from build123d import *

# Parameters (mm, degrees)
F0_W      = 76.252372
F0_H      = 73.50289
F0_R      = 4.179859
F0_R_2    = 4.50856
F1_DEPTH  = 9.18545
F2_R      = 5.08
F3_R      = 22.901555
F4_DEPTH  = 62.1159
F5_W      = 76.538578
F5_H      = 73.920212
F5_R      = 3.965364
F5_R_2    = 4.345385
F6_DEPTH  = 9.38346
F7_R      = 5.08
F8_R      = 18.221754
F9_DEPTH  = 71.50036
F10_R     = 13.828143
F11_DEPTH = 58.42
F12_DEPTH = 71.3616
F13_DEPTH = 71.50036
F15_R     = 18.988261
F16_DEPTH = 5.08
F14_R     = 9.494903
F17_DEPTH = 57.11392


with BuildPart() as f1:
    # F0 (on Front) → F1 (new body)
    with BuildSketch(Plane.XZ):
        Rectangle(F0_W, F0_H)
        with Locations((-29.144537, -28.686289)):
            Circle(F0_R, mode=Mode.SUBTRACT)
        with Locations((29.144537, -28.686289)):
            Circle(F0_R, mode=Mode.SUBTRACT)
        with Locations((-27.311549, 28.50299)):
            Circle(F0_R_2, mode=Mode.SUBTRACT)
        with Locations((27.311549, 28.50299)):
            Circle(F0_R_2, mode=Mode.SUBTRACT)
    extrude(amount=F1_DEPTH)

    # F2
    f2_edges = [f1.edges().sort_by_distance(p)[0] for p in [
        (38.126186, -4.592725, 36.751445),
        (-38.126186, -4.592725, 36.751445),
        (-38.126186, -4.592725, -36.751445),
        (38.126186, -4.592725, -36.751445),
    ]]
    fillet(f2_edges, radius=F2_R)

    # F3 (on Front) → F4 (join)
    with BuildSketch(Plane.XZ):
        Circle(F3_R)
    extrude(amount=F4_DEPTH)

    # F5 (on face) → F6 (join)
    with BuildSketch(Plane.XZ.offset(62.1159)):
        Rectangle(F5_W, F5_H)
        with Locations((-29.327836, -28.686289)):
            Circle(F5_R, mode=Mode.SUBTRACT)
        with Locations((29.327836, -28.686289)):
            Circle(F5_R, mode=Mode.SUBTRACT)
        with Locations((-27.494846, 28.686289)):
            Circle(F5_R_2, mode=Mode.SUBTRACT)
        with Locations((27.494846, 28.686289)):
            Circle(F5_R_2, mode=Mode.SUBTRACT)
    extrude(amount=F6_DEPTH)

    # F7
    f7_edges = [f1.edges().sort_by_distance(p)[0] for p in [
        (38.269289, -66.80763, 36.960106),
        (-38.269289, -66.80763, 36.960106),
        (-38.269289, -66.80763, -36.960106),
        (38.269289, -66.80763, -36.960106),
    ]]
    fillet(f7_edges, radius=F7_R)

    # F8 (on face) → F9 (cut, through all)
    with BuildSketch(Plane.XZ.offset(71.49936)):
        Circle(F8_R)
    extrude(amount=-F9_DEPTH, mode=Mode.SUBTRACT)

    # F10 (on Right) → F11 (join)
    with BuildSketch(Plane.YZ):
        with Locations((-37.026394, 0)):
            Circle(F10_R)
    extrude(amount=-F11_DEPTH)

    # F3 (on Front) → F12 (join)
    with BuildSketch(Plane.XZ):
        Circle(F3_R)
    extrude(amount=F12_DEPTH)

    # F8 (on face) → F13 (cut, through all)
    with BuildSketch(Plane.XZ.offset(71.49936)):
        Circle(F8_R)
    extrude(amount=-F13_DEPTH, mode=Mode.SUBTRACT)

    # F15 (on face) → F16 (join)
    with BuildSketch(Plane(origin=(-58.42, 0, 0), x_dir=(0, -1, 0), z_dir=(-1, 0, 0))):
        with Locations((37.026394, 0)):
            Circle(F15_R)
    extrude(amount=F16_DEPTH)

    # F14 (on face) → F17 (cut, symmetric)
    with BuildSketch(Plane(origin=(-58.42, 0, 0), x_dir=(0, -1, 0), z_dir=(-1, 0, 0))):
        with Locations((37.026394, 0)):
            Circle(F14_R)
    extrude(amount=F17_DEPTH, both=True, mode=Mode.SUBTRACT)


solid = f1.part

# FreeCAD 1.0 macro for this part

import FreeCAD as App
import Part
import Sketcher
Q = App.Units.Quantity


def edges_at(feature, points):
    """Names of the edges that pass closest to the given points."""
    edges = feature.Shape.Edges
    near = lambda p: min(range(len(edges)), key=lambda i: edges[i].distToShape(Part.Vertex(*p))[0])
    return sorted({f"Edge{near(p) + 1}" for p in points})

doc = App.newDocument("Part")
body = doc.addObject("PartDesign::Body", "Body")

sketch1 = doc.addObject("Sketcher::SketchObject", "Sketch")
body.addObject(sketch1)
sketch1.AttachmentSupport = (doc.XZ_Plane, [""])
sketch1.MapMode = "FlatFace"
sketch1.addGeometry([
    Part.LineSegment(App.Vector(-38.1, 36.8, 0), App.Vector(-38.1, -36.8, 0)),
    Part.LineSegment(App.Vector(-38.1, -36.8, 0), App.Vector(38.1, -36.8, 0)),
    Part.LineSegment(App.Vector(38.1, -36.8, 0), App.Vector(38.1, 36.8, 0)),
    Part.LineSegment(App.Vector(38.1, 36.8, 0), App.Vector(-38.1, 36.8, 0)),
    Part.Circle(App.Vector(-29.1, -28.7, 0), App.Vector(0, 0, 1), 4.2),
    Part.Circle(App.Vector(29.1, -28.7, 0), App.Vector(0, 0, 1), 4.2),
    Part.Circle(App.Vector(-27.3, 28.5, 0), App.Vector(0, 0, 1), 4.5),
    Part.Circle(App.Vector(27.3, 28.5, 0), App.Vector(0, 0, 1), 4.5),
], False)
sketch1.addConstraint([
    Sketcher.Constraint("Coincident", 0, 2, 1, 1),
    Sketcher.Constraint("Coincident", 1, 2, 2, 1),
    Sketcher.Constraint("Coincident", 2, 2, 3, 1),
    Sketcher.Constraint("Coincident", 3, 2, 0, 1),
    Sketcher.Constraint("Vertical", 0),
    Sketcher.Constraint("Horizontal", 1),
    Sketcher.Constraint("Vertical", 2),
    Sketcher.Constraint("Horizontal", 3),
    Sketcher.Constraint("Equal", 4, 5),
    Sketcher.Constraint("Equal", 6, 7),
    Sketcher.Constraint("Symmetric", 0, 2, 2, 2, -1, 1),
    Sketcher.Constraint("Symmetric", 4, 3, 5, 3, -2),
    Sketcher.Constraint("Symmetric", 6, 3, 7, 3, -2),
    Sketcher.Constraint("Diameter", 4, 8.359718),
    Sketcher.Constraint("Diameter", 6, 9.01712),
    Sketcher.Constraint("DistanceX", 1, 1, 1, 2, 76.252372),
    Sketcher.Constraint("DistanceY", 0, 2, 0, 1, 73.50289),
    Sketcher.Constraint("DistanceY", 4, 3, -1, 1, 28.686289),
    Sketcher.Constraint("DistanceX", 6, 3, -1, 1, 27.311549),
    Sketcher.Constraint("DistanceY", -1, 1, 6, 3, 28.50299),
    Sketcher.Constraint("DistanceX", 4, 3, 6, 3, 1.832988),
])
pad1 = doc.addObject("PartDesign::Pad", "Pad")
body.addObject(pad1)
pad1.Profile = sketch1
pad1.Length = 9.18545
doc.recompute()

fillet = doc.addObject("PartDesign::Fillet", "Fillet")
body.addObject(fillet)
fillet.Base = (pad1, edges_at(pad1, [
    (38.126, -4.593, 36.751),
    (-38.126, -4.593, 36.751),
    (-38.126, -4.593, -36.751),
    (38.126, -4.593, -36.751),
]))
fillet.Radius = Q("0.2 in")

sketch2 = doc.addObject("Sketcher::SketchObject", "Sketch001")
body.addObject(sketch2)
sketch2.AttachmentSupport = (doc.XZ_Plane, [""])
sketch2.MapMode = "FlatFace"
sketch2.addGeometry(Part.Circle(App.Vector(0, 0, 0), App.Vector(0, 0, 1), 23), False)
sketch2.addConstraint([
    Sketcher.Constraint("Coincident", 0, 3, -1, 1),
    Sketcher.Constraint("Diameter", 0, 45.80311),
])
pad2 = doc.addObject("PartDesign::Pad", "Pad001")
body.addObject(pad2)
pad2.Profile = sketch2
pad2.Length = 62.1159

sketch3 = doc.addObject("Sketcher::SketchObject", "Sketch002")
body.addObject(sketch3)
sketch3.AttachmentSupport = (doc.XZ_Plane, [""])
sketch3.MapMode = "FlatFace"
sketch3.AttachmentOffset = App.Placement(App.Vector(0, 0, 62.1159), App.Rotation())
sketch3.addGeometry([
    Part.LineSegment(App.Vector(-38.3, 37, 0), App.Vector(-38.3, -37, 0)),
    Part.LineSegment(App.Vector(-38.3, -37, 0), App.Vector(38.3, -37, 0)),
    Part.LineSegment(App.Vector(38.3, -37, 0), App.Vector(38.3, 37, 0)),
    Part.LineSegment(App.Vector(38.3, 37, 0), App.Vector(-38.3, 37, 0)),
    Part.Circle(App.Vector(-29.3, -28.7, 0), App.Vector(0, 0, 1), 4),
    Part.Circle(App.Vector(29.3, -28.7, 0), App.Vector(0, 0, 1), 4),
    Part.Circle(App.Vector(-27.5, 28.7, 0), App.Vector(0, 0, 1), 4.3),
    Part.Circle(App.Vector(27.5, 28.7, 0), App.Vector(0, 0, 1), 4.3),
], False)
sketch3.addConstraint([
    Sketcher.Constraint("Coincident", 0, 2, 1, 1),
    Sketcher.Constraint("Coincident", 1, 2, 2, 1),
    Sketcher.Constraint("Coincident", 2, 2, 3, 1),
    Sketcher.Constraint("Coincident", 3, 2, 0, 1),
    Sketcher.Constraint("Vertical", 0),
    Sketcher.Constraint("Horizontal", 1),
    Sketcher.Constraint("Vertical", 2),
    Sketcher.Constraint("Horizontal", 3),
    Sketcher.Constraint("Equal", 4, 5),
    Sketcher.Constraint("Equal", 6, 7),
    Sketcher.Constraint("Symmetric", 0, 2, 2, 2, -1, 1),
    Sketcher.Constraint("Symmetric", 4, 3, 5, 3, -2),
    Sketcher.Constraint("Symmetric", 6, 3, 7, 3, -2),
    Sketcher.Constraint("Diameter", 4, 7.930728),
    Sketcher.Constraint("Diameter", 6, 8.69077),
    Sketcher.Constraint("DistanceX", 1, 1, 1, 2, 76.538578),
    Sketcher.Constraint("DistanceY", 0, 2, 0, 1, 73.920212),
    Sketcher.Constraint("DistanceY", 4, 3, -1, 1, 28.686289),
    Sketcher.Constraint("DistanceY", -1, 1, 6, 3, 28.686289),
    Sketcher.Constraint("DistanceX", 4, 3, 6, 3, 1.83299),
    Sketcher.Constraint("DistanceX", 6, 3, 7, 3, 54.989692),
])
pad3 = doc.addObject("PartDesign::Pad", "Pad002")
body.addObject(pad3)
pad3.Profile = sketch3
pad3.Length = 9.38346
doc.recompute()

fillet2 = doc.addObject("PartDesign::Fillet", "Fillet001")
body.addObject(fillet2)
fillet2.Base = (pad3, edges_at(pad3, [
    (38.269, -66.808, 36.96),
    (-38.269, -66.808, 36.96),
    (-38.269, -66.808, -36.96),
    (38.269, -66.808, -36.96),
]))
fillet2.Radius = Q("0.2 in")

sketch4 = doc.addObject("Sketcher::SketchObject", "Sketch003")
body.addObject(sketch4)
sketch4.AttachmentSupport = (doc.XZ_Plane, [""])
sketch4.MapMode = "FlatFace"
sketch4.AttachmentOffset = App.Placement(App.Vector(0, 0, 71.49936), App.Rotation())
sketch4.addGeometry(Part.Circle(App.Vector(0, 0, 0), App.Vector(0, 0, 1), 18), False)
sketch4.addConstraint([
    Sketcher.Constraint("Coincident", 0, 3, -1, 1),
    Sketcher.Constraint("Diameter", 0, 36.443508),
])
pocket1 = doc.addObject("PartDesign::Pocket", "Pocket")
body.addObject(pocket1)
pocket1.Profile = sketch4
pocket1.Type = "ThroughAll"

sketch5 = doc.addObject("Sketcher::SketchObject", "Sketch004")
body.addObject(sketch5)
sketch5.AttachmentSupport = (doc.YZ_Plane, [""])
sketch5.MapMode = "FlatFace"
sketch5.addGeometry(Part.Circle(App.Vector(-37, 0, 0), App.Vector(0, 0, 1), 14), False)
sketch5.addConstraint([
    Sketcher.Constraint("PointOnObject", 0, 3, -1),
    Sketcher.Constraint("Diameter", 0, 27.656286),
    Sketcher.Constraint("DistanceX", 0, 3, -1, 1, 37.026394),
])
pad4 = doc.addObject("PartDesign::Pad", "Pad003")
body.addObject(pad4)
pad4.Profile = sketch5
pad4.Length = Q("2.3 in")
pad4.Reversed = True

sketch6 = doc.addObject("Sketcher::SketchObject", "Sketch005")
body.addObject(sketch6)
sketch6.AttachmentSupport = (doc.XZ_Plane, [""])
sketch6.MapMode = "FlatFace"
sketch6.addGeometry(Part.Circle(App.Vector(0, 0, 0), App.Vector(0, 0, 1), 23), False)
sketch6.addConstraint([
    Sketcher.Constraint("Coincident", 0, 3, -1, 1),
    Sketcher.Constraint("Diameter", 0, 45.80311),
])
pad5 = doc.addObject("PartDesign::Pad", "Pad004")
body.addObject(pad5)
pad5.Profile = sketch6
pad5.Length = 71.3616

sketch7 = doc.addObject("Sketcher::SketchObject", "Sketch006")
body.addObject(sketch7)
sketch7.AttachmentSupport = (doc.XZ_Plane, [""])
sketch7.MapMode = "FlatFace"
sketch7.AttachmentOffset = App.Placement(App.Vector(0, 0, 71.49936), App.Rotation())
sketch7.addGeometry(Part.Circle(App.Vector(0, 0, 0), App.Vector(0, 0, 1), 18), False)
sketch7.addConstraint([
    Sketcher.Constraint("Coincident", 0, 3, -1, 1),
    Sketcher.Constraint("Diameter", 0, 36.443508),
])
pocket2 = doc.addObject("PartDesign::Pocket", "Pocket001")
body.addObject(pocket2)
pocket2.Profile = sketch7
pocket2.Type = "ThroughAll"

sketch8 = doc.addObject("Sketcher::SketchObject", "Sketch007")
body.addObject(sketch8)
sketch8.AttachmentSupport = (doc.YZ_Plane, [""])
sketch8.MapMode = "FlatFace"
sketch8.AttachmentOffset = App.Placement(App.Vector(0, 0, -2.3 * 25.4), App.Rotation())
sketch8.addGeometry(Part.Circle(App.Vector(-37, 0, 0), App.Vector(0, 0, 1), 19), False)
sketch8.addConstraint([
    Sketcher.Constraint("PointOnObject", 0, 3, -1),
    Sketcher.Constraint("Diameter", 0, 37.976522),
    Sketcher.Constraint("DistanceX", 0, 3, -1, 1, 37.026394),
])
pad6 = doc.addObject("PartDesign::Pad", "Pad005")
body.addObject(pad6)
pad6.Profile = sketch8
pad6.Length = Q("0.2 in")
pad6.Reversed = True

sketch9 = doc.addObject("Sketcher::SketchObject", "Sketch008")
body.addObject(sketch9)
sketch9.AttachmentSupport = (doc.YZ_Plane, [""])
sketch9.MapMode = "FlatFace"
sketch9.AttachmentOffset = App.Placement(App.Vector(0, 0, -2.3 * 25.4), App.Rotation())
sketch9.addGeometry(Part.Circle(App.Vector(-37, 0, 0), App.Vector(0, 0, 1), 9), False)
sketch9.addConstraint([
    Sketcher.Constraint("PointOnObject", 0, 3, -1),
    Sketcher.Constraint("Diameter", 0, 18.989806),
    Sketcher.Constraint("DistanceX", 0, 3, -1, 1, 37.026394),
])
pocket3 = doc.addObject("PartDesign::Pocket", "Pocket002")
body.addObject(pocket3)
pocket3.Profile = sketch9
pocket3.Length = 114.22784
pocket3.Midplane = True

doc.recompute()
